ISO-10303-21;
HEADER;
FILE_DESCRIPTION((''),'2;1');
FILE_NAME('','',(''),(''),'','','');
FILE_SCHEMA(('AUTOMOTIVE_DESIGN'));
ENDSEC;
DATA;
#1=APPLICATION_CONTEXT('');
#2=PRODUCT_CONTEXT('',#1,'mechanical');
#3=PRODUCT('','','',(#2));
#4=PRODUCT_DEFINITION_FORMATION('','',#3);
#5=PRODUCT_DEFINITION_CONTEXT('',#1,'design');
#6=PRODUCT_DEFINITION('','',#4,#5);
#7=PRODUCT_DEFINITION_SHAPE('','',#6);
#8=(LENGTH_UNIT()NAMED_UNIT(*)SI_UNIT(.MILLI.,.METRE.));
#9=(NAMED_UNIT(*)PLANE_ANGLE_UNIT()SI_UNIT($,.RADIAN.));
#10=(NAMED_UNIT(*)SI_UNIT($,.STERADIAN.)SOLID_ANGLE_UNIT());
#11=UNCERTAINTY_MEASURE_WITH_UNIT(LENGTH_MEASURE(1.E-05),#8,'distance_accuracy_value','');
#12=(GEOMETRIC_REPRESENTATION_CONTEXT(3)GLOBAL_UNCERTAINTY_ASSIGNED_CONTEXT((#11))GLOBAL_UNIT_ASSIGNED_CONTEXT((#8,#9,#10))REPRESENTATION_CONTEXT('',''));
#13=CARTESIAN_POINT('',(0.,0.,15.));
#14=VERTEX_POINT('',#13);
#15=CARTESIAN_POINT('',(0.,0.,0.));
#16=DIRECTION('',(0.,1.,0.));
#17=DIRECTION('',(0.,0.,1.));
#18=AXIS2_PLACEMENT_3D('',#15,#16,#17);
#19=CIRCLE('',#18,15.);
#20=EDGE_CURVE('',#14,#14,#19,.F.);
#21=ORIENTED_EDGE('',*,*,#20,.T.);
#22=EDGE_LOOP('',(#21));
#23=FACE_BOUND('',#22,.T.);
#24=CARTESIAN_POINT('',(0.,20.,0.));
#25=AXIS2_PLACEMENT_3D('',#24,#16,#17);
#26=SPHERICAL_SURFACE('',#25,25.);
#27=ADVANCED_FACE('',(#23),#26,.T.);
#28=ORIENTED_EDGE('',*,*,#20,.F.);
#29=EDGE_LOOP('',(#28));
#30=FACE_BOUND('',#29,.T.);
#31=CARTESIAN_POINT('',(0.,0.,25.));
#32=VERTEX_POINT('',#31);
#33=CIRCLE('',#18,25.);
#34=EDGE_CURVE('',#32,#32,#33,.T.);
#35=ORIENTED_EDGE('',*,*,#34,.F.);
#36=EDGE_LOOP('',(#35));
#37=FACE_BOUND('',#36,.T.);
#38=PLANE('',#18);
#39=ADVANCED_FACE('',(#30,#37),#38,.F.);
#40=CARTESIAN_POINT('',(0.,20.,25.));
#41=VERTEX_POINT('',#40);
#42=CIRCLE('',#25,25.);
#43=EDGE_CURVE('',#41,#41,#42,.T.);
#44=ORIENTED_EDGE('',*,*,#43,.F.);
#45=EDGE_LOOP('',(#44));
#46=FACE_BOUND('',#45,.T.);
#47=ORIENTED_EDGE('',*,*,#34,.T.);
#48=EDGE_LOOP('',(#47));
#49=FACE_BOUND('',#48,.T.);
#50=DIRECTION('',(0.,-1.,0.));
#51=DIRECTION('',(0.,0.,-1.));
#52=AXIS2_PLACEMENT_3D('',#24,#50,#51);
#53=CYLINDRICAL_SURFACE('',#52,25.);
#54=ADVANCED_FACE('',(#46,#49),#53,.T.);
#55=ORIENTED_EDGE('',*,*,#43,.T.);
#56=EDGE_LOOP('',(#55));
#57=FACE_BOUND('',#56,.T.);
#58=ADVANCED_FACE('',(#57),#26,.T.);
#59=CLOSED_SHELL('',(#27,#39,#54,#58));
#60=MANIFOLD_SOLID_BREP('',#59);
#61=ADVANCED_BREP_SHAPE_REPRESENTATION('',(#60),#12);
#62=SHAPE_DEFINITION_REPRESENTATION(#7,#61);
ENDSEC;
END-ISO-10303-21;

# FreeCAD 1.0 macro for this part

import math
import FreeCAD as App
import Part
import Sketcher
Q = App.Units.Quantity

doc = App.newDocument("Part")
body = doc.addObject("PartDesign::Body", "Body")

sketch1 = body.newObject("Sketcher::SketchObject", "Sketch")
sketch1.AttachmentSupport = (doc.getObject("XZ_Plane"), [""])
sketch1.MapMode = "FlatFace"
sketch1.addGeometry(Part.Circle(App.Vector(0, 0, 0), App.Vector(0, 0, 1), 25), False)
sketch1.addConstraint([
    Sketcher.Constraint("Coincident", 0, 3, -1, 1),
    Sketcher.Constraint("Diameter", 0, Q("50 mm")),
])
pad1 = body.newObject("PartDesign::Pad", "Pad")
pad1.Profile = sketch1
pad1.Length = 20
pad1.Reversed = True

sketch2 = body.newObject("Sketcher::SketchObject", "Sketch001")
sketch2.AttachmentSupport = (doc.getObject("XZ_Plane"), [""])
sketch2.MapMode = "FlatFace"
sketch2.AttachmentOffset = App.Placement(App.Vector(0, 0, -20), App.Rotation())
sketch2.addGeometry([
    Part.LineSegment(App.Vector(0, -25, 0), App.Vector(0, 25, 0)),
    Part.ArcOfCircle(Part.Circle(App.Vector(0, 0, 0), App.Vector(0, 0, 1), 25), math.radians(-90), math.radians(90)),
], False)
sketch2.addConstraint([
    Sketcher.Constraint("Coincident", 0, 1, 1, 1),
    Sketcher.Constraint("Coincident", 1, 2, 0, 2),
    Sketcher.Constraint("Vertical", 0),
    Sketcher.Constraint("Coincident", 1, 3, -1, 1),
    Sketcher.Constraint("PointOnObject", 0, 1, -2),
    Sketcher.Constraint("Radius", 1, Q("25 mm")),
])
revolution = body.newObject("PartDesign::Revolution", "Revolution")
revolution.Profile = sketch2
revolution.ReferenceAxis = (sketch2, ["V_Axis"])
revolution.Angle = 360

doc.recompute()
